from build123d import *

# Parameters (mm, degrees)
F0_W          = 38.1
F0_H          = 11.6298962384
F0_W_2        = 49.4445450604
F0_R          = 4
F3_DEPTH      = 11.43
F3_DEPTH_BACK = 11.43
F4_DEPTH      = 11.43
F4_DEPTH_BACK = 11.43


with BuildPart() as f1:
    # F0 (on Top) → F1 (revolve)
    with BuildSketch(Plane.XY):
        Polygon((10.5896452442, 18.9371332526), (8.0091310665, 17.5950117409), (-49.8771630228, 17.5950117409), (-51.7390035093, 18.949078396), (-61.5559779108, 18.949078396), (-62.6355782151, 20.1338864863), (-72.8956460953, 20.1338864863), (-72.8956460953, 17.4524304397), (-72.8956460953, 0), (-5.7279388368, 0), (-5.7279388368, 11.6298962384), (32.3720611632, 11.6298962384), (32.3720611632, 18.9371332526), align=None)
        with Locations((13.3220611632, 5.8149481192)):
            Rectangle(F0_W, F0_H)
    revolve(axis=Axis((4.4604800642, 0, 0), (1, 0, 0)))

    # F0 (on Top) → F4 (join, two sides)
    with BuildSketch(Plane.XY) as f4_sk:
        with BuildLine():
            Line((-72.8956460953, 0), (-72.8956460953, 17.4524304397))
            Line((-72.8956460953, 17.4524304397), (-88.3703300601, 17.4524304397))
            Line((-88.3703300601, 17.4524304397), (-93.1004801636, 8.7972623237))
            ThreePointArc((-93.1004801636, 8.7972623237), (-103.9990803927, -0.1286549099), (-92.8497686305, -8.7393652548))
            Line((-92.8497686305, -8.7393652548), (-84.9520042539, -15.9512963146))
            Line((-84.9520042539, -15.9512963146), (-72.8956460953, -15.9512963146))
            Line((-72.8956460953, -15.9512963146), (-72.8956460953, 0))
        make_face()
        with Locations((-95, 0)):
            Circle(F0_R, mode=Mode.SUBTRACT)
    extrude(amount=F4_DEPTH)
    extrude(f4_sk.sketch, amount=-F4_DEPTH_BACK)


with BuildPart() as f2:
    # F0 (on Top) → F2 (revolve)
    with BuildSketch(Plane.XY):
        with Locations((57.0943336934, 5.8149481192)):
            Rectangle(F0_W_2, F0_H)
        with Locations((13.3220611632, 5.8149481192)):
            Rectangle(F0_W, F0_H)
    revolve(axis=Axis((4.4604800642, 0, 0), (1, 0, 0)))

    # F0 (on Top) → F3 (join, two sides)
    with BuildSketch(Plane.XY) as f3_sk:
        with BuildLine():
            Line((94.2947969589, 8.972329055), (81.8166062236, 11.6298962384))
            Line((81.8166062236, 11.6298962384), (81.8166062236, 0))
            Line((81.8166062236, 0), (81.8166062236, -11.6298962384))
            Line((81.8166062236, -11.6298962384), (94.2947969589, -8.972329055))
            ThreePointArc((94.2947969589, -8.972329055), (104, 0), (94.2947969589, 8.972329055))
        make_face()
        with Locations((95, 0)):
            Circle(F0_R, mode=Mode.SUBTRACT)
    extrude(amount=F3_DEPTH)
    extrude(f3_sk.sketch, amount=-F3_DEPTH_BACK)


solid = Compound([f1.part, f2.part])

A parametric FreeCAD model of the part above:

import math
import FreeCAD as App
import Part
import Sketcher

V = App.Vector
Q = App.Units.Quantity

doc = App.newDocument("Part")
body = doc.addObject("PartDesign::Body", "Body")

# Sketch on XY plane
sketch1 = body.newObject("Sketcher::SketchObject", "Sketch")
sketch1.AttachmentSupport = (doc.getObject("XY_Plane"), [""])
sketch1.MapMode = "FlatFace"
sketch1.addGeometry(Part.LineSegment(V(10.6, 18.9, 0), V(8, 17.6, 0)), False)
sketch1.addGeometry(Part.LineSegment(V(8, 17.6, 0), V(-49.9, 17.6, 0)), False)
sketch1.addGeometry(Part.LineSegment(V(-49.9, 17.6, 0), V(-51.7, 18.9, 0)), False)
sketch1.addGeometry(Part.LineSegment(V(-51.7, 18.9, 0), V(-61.6, 18.9, 0)), False)
sketch1.addGeometry(Part.LineSegment(V(-61.6, 18.9, 0), V(-62.6, 20.1, 0)), False)
sketch1.addGeometry(Part.LineSegment(V(-62.6, 20.1, 0), V(-72.9, 20.1, 0)), False)
sketch1.addGeometry(Part.LineSegment(V(-72.9, 20.1, 0), V(-72.9, 0, 0)), False)
sketch1.addGeometry(Part.LineSegment(V(-72.9, 0, 0), V(32.4, 0, 0)), False)
sketch1.addGeometry(Part.LineSegment(V(32.4, 0, 0), V(32.4, 18.9, 0)), False)
sketch1.addGeometry(Part.LineSegment(V(32.4, 18.9, 0), V(10.6, 18.9, 0)), False)
sketch1.addConstraint(Sketcher.Constraint("Coincident", 0, 2, 1, 1))
sketch1.addConstraint(Sketcher.Constraint("Coincident", 1, 2, 2, 1))
sketch1.addConstraint(Sketcher.Constraint("Coincident", 2, 2, 3, 1))
sketch1.addConstraint(Sketcher.Constraint("Coincident", 3, 2, 4, 1))
sketch1.addConstraint(Sketcher.Constraint("Coincident", 4, 2, 5, 1))
sketch1.addConstraint(Sketcher.Constraint("Coincident", 5, 2, 6, 1))
sketch1.addConstraint(Sketcher.Constraint("Coincident", 6, 2, 7, 1))
sketch1.addConstraint(Sketcher.Constraint("Coincident", 7, 2, 8, 1))
sketch1.addConstraint(Sketcher.Constraint("Coincident", 8, 2, 9, 1))
sketch1.addConstraint(Sketcher.Constraint("Coincident", 9, 2, 0, 1))
sketch1.addConstraint(Sketcher.Constraint("Horizontal", 1))
sketch1.addConstraint(Sketcher.Constraint("Horizontal", 3))
sketch1.addConstraint(Sketcher.Constraint("Horizontal", 5))
sketch1.addConstraint(Sketcher.Constraint("Vertical", 6))
sketch1.addConstraint(Sketcher.Constraint("Horizontal", 7))
sketch1.addConstraint(Sketcher.Constraint("Vertical", 8))
sketch1.addConstraint(Sketcher.Constraint("Horizontal", 9))
sketch1.addConstraint(Sketcher.Constraint("PointOnObject", 6, 2, -1))
sketch1.addConstraint(Sketcher.Constraint("DistanceX", 4, 2, 3, 2, Q("1.0796 mm")))
sketch1.addConstraint(Sketcher.Constraint("Distance", 2, Q("2.302161 mm")))
sketch1.addConstraint(Sketcher.Constraint("DistanceX", 1, 2, 1, 1, Q("57.886294 mm")))
sketch1.addConstraint(Sketcher.Constraint("DistanceX", 3, 2, 3, 1, Q("9.816974 mm")))
sketch1.addConstraint(Sketcher.Constraint("DistanceX", 5, 2, 5, 1, Q("10.260068 mm")))
sketch1.addConstraint(Sketcher.Constraint("DistanceX", 7, 1, 7, 2, Q("105.267707 mm")))
sketch1.addConstraint(Sketcher.Constraint("DistanceX", 9, 2, 9, 1, Q("21.782416 mm")))
sketch1.addConstraint(Sketcher.Constraint("DistanceY", 6, 2, 6, 1, Q("20.133886 mm")))
sketch1.addConstraint(Sketcher.Constraint("DistanceY", 8, 1, 8, 2, Q("18.937133 mm")))
sketch1.addConstraint(Sketcher.Constraint("DistanceX", -1, 1, 0, 2, Q("8.009131 mm")))
sketch1.addConstraint(Sketcher.Constraint("DistanceY", -1, 1, 0, 2, Q("17.595012 mm")))
sketch1.addConstraint(Sketcher.Constraint("DistanceY", -1, 1, 2, 2, Q("18.949078 mm")))
revolution = body.newObject("PartDesign::Revolution", "Revolution")
revolution.Profile = sketch1
revolution.ReferenceAxis = (sketch1, ["H_Axis"])
revolution.Angle = 360

# Sketch on XY plane
sketch2 = body.newObject("Sketcher::SketchObject", "Sketch001")
sketch2.AttachmentSupport = (doc.getObject("XY_Plane"), [""])
sketch2.MapMode = "FlatFace"
sketch2.addGeometry(Part.LineSegment(V(-72.9, 17.5, 0), V(-88.4, 17.5, 0)), False)
sketch2.addGeometry(Part.LineSegment(V(-88.4, 17.5, 0), V(-93.1, 8.8, 0)), False)
sketch2.addGeometry(Part.ArcOfCircle(Part.Circle(V(-95, 0, 0), V(0, 0, 1), 9), math.radians(78), math.radians(284)), False)
sketch2.addGeometry(Part.LineSegment(V(-92.8, -8.7, 0), V(-85, -16, 0)), False)
sketch2.addGeometry(Part.LineSegment(V(-85, -16, 0), V(-72.9, -16, 0)), False)
sketch2.addGeometry(Part.LineSegment(V(-72.9, -16, 0), V(-72.9, 17.5, 0)), False)
sketch2.addGeometry(Part.Circle(V(-95, 0, 0), V(0, 0, 1), 4), False)
sketch2.addConstraint(Sketcher.Constraint("Coincident", 0, 2, 1, 1))
sketch2.addConstraint(Sketcher.Constraint("Coincident", 1, 2, 2, 1))
sketch2.addConstraint(Sketcher.Constraint("Coincident", 2, 2, 3, 1))
sketch2.addConstraint(Sketcher.Constraint("Coincident", 3, 2, 4, 1))
sketch2.addConstraint(Sketcher.Constraint("Coincident", 4, 2, 5, 1))
sketch2.addConstraint(Sketcher.Constraint("Coincident", 5, 2, 0, 1))
sketch2.addConstraint(Sketcher.Constraint("Horizontal", 0))
sketch2.addConstraint(Sketcher.Constraint("Horizontal", 4))
sketch2.addConstraint(Sketcher.Constraint("Vertical", 5))
sketch2.addConstraint(Sketcher.Constraint("Coincident", 6, 3, 2, 3))
sketch2.addConstraint(Sketcher.Constraint("PointOnObject", 2, 3, -1))
sketch2.addConstraint(Sketcher.Constraint("Diameter", 6, Q("8 mm")))
sketch2.addConstraint(Sketcher.Constraint("Radius", 2, Q("9 mm")))
sketch2.addConstraint(Sketcher.Constraint("DistanceX", 2, 3, -1, 1, Q("95 mm")))
sketch2.addConstraint(Sketcher.Constraint("DistanceX", 4, 1, 4, 2, Q("12.056358 mm")))
sketch2.addConstraint(Sketcher.Constraint("Distance", 1, Q("9.863379 mm")))
sketch2.addConstraint(Sketcher.Constraint("Distance", 3, Q("10.695169 mm")))
sketch2.addConstraint(Sketcher.Constraint("DistanceX", 0, 2, 0, 1, Q("15.474684 mm")))
sketch2.addConstraint(Sketcher.Constraint("DistanceY", 5, 1, 5, 2, Q("33.403727 mm")))
sketch2.addConstraint(Sketcher.Constraint("DistanceX", 0, 2, -1, 1, Q("88.37033 mm")))
sketch2.addConstraint(Sketcher.Constraint("DistanceY", -1, 1, 0, 2, Q("17.45243 mm")))
pad1 = body.newObject("PartDesign::Pad", "Pad")
pad1.Profile = sketch2
pad1.Type = "TwoLengths"
pad1.Length = 11.43
pad1.Length2 = 11.43
body2 = doc.addObject("PartDesign::Body", "Body001")

# Sketch on XY plane
sketch3 = body2.newObject("Sketcher::SketchObject", "Sketch002")
sketch3.AttachmentSupport = (doc.getObject("XY_Plane001"), [""])
sketch3.MapMode = "FlatFace"
sketch3.addGeometry(Part.LineSegment(V(82, 0, 0), V(82, 12, 0)), False)
sketch3.addGeometry(Part.LineSegment(V(82, 12, 0), V(-6, 12, 0)), False)
sketch3.addGeometry(Part.LineSegment(V(-6, 12, 0), V(-6, 0, 0)), False)
sketch3.addGeometry(Part.LineSegment(V(-6, 0, 0), V(82, 0, 0)), False)
sketch3.addConstraint(Sketcher.Constraint("Coincident", 0, 2, 1, 1))
sketch3.addConstraint(Sketcher.Constraint("Coincident", 1, 2, 2, 1))
sketch3.addConstraint(Sketcher.Constraint("Coincident", 2, 2, 3, 1))
sketch3.addConstraint(Sketcher.Constraint("Coincident", 3, 2, 0, 1))
sketch3.addConstraint(Sketcher.Constraint("Vertical", 0))
sketch3.addConstraint(Sketcher.Constraint("Horizontal", 1))
sketch3.addConstraint(Sketcher.Constraint("Vertical", 2))
sketch3.addConstraint(Sketcher.Constraint("Horizontal", 3))
sketch3.addConstraint(Sketcher.Constraint("PointOnObject", 2, 2, -1))
sketch3.addConstraint(Sketcher.Constraint("DistanceX", 1, 2, 1, 1, Q("87.544545 mm")))
sketch3.addConstraint(Sketcher.Constraint("DistanceY", 0, 1, 0, 2, Q("11.629896 mm")))
sketch3.addConstraint(Sketcher.Constraint("DistanceX", 1, 2, -1, 1, Q("5.727939 mm")))
revolution2 = body2.newObject("PartDesign::Revolution", "Revolution001")
revolution2.Profile = sketch3
revolution2.ReferenceAxis = (sketch3, ["H_Axis"])
revolution2.Angle = 360

# Sketch on XY plane
sketch4 = body2.newObject("Sketcher::SketchObject", "Sketch003")
sketch4.AttachmentSupport = (doc.getObject("XY_Plane001"), [""])
sketch4.MapMode = "FlatFace"
sketch4.addGeometry(Part.LineSegment(V(94.3, 9, 0), V(81.8, 11.6, 0)), False)
sketch4.addGeometry(Part.LineSegment(V(81.8, 11.6, 0), V(81.8, -11.6, 0)), False)
sketch4.addGeometry(Part.LineSegment(V(81.8, -11.6, 0), V(94.3, -9, 0)), False)
sketch4.addGeometry(Part.ArcOfCircle(Part.Circle(V(95, 0, 0), V(0, 0, 1), 9), math.radians(-94), math.radians(94)), False)
sketch4.addGeometry(Part.Circle(V(95, 0, 0), V(0, 0, 1), 4), False)
sketch4.addConstraint(Sketcher.Constraint("Coincident", 0, 2, 1, 1))
sketch4.addConstraint(Sketcher.Constraint("Coincident", 1, 2, 2, 1))
sketch4.addConstraint(Sketcher.Constraint("Coincident", 2, 2, 3, 1))
sketch4.addConstraint(Sketcher.Constraint("Coincident", 3, 2, 0, 1))
sketch4.addConstraint(Sketcher.Constraint("Vertical", 1))
sketch4.addConstraint(Sketcher.Constraint("Coincident", 4, 3, 3, 3))
sketch4.addConstraint(Sketcher.Constraint("Symmetric", 2, 2, 3, 2, -1))
sketch4.addConstraint(Sketcher.Constraint("Equal", 0, 2))
sketch4.addConstraint(Sketcher.Constraint("Diameter", 4, Q("8 mm")))
sketch4.addConstraint(Sketcher.Constraint("Radius", 3, Q("9 mm")))
sketch4.addConstraint(Sketcher.Constraint("DistanceX", -1, 1, 3, 3, Q("95 mm")))
sketch4.addConstraint(Sketcher.Constraint("DistanceY", 1, 2, 1, 1, Q("23.259792 mm")))
sketch4.addConstraint(Sketcher.Constraint("DistanceY", 2, 2, -1, 1, Q("8.972329 mm")))
sketch4.addConstraint(Sketcher.Constraint("DistanceX", 1, 2, 2, 2, Q("12.478191 mm")))
pad2 = body2.newObject("PartDesign::Pad", "Pad001")
pad2.Profile = sketch4
pad2.Type = "TwoLengths"
pad2.Length = 11.43
pad2.Length2 = 11.43

doc.recompute()
